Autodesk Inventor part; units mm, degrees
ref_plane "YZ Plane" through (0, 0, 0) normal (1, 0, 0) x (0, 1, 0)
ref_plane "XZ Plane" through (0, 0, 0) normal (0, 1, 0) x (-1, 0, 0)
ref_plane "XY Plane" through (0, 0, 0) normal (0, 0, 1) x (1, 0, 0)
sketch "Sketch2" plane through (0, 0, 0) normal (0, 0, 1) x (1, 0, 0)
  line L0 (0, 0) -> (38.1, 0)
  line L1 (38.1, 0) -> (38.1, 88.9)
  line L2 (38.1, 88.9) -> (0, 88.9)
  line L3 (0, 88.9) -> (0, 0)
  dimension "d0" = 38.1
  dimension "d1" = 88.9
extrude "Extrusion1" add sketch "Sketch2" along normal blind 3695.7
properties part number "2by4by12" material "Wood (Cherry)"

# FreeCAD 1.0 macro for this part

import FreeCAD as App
import Part
import Sketcher
Q = App.Units.Quantity

doc = App.newDocument("Part")
params = doc.addObject("Spreadsheet::Sheet", "Params")
for row, (alias, value) in enumerate([
    ("sketch1_width", "1.5 in"),
    ("sketch1_height", "3.5 in"),
    ("pad1_length", "145.5 in"),
], start=1):
    params.set(f"A{row}", alias)
    params.set(f"B{row}", "=" + value)
    params.setAlias(f"B{row}", alias)

body = doc.addObject("PartDesign::Body", "Body")

# Sketch on XY plane
sketch1 = body.newObject("Sketcher::SketchObject", "Sketch")
sketch1.AttachmentSupport = (doc.getObject("XY_Plane"), [""])
sketch1.MapMode = "FlatFace"
sketch1.addGeometry([
    Part.LineSegment(App.Vector(0, 89, 0), App.Vector(0, 0, 0)),
    Part.LineSegment(App.Vector(0, 0, 0), App.Vector(38, 0, 0)),
    Part.LineSegment(App.Vector(38, 0, 0), App.Vector(38, 89, 0)),
    Part.LineSegment(App.Vector(38, 89, 0), App.Vector(0, 89, 0)),
], False)
sketch1.addConstraint([
    Sketcher.Constraint("Coincident", 0, 2, 1, 1),
    Sketcher.Constraint("Coincident", 1, 2, 2, 1),
    Sketcher.Constraint("Coincident", 2, 2, 3, 1),
    Sketcher.Constraint("Coincident", 3, 2, 0, 1),
    Sketcher.Constraint("Vertical", 0),
    Sketcher.Constraint("Horizontal", 1),
    Sketcher.Constraint("Vertical", 2),
    Sketcher.Constraint("Horizontal", 3),
    Sketcher.Constraint("Coincident", 0, 2, -1, 1),
    Sketcher.Constraint("DistanceX", 1, 1, 1, 2, Q("1.5 in")),
    Sketcher.Constraint("DistanceY", 0, 2, 0, 1, Q("3.5 in")),
])
sketch1.setExpression("Constraints[9]", "Params.sketch1_width")
sketch1.setExpression("Constraints[10]", "Params.sketch1_height")
pad1 = body.newObject("PartDesign::Pad", "Pad")
pad1.Profile = sketch1
pad1.setExpression("Length", "Params.pad1_length")

doc.recompute()
